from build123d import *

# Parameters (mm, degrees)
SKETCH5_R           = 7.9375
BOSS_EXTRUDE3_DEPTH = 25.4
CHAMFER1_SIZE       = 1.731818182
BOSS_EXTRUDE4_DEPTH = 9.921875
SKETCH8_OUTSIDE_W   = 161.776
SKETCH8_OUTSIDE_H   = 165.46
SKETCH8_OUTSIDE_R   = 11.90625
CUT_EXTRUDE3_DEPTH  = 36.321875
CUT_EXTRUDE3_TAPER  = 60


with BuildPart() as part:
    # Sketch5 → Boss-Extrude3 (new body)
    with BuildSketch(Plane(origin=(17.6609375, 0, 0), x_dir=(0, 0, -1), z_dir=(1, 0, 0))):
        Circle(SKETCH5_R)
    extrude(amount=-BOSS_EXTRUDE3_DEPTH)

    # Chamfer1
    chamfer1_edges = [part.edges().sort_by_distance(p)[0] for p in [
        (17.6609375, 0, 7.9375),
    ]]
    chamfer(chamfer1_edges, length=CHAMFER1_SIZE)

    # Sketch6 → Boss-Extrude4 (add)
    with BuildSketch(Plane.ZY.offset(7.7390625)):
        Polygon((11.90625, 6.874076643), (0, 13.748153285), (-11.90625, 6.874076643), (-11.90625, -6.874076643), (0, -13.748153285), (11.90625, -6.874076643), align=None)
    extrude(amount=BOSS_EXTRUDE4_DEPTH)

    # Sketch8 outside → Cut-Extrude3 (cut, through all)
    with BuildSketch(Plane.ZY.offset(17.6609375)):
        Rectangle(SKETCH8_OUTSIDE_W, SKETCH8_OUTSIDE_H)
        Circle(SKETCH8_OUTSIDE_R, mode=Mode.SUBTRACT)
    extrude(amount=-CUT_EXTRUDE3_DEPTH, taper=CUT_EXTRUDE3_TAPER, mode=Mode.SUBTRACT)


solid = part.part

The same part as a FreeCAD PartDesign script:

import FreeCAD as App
import Part
import Sketcher

V = App.Vector
Q = App.Units.Quantity


def edges_at(feature, points):
    """Names of the edges that pass closest to the given points."""
    edges = feature.Shape.Edges
    near = lambda p: min(range(len(edges)), key=lambda i: edges[i].distToShape(Part.Vertex(*p))[0])
    return sorted({f"Edge{near(p) + 1}" for p in points})

doc = App.newDocument("Part")
body = doc.addObject("PartDesign::Body", "Body")

sketch1 = body.newObject("Sketcher::SketchObject", "Sketch")
sketch1.AttachmentSupport = (doc.getObject("YZ_Plane"), [""])
sketch1.MapMode = "FlatFace"
sketch1.AttachmentOffset = App.Placement(V(0, 0, 17.660937), App.Rotation())
sketch1.addGeometry(Part.Circle(V(0, 0, 0), V(0, 0, 1), 8), False)
sketch1.addConstraint([
    Sketcher.Constraint("Coincident", 0, 3, -1, 1),
    Sketcher.Constraint("Diameter", 0, Q("0.625 in")),
])
pad1 = body.newObject("PartDesign::Pad", "Pad")
pad1.Profile = sketch1
pad1.Length = Q("1 in")
pad1.Reversed = True
doc.recompute()

chamfer = body.newObject("PartDesign::Chamfer", "Chamfer")
chamfer.Base = (pad1, edges_at(pad1, [(17.661, 0, 7.938)]))
chamfer.Size = 1.731818

sketch2 = body.newObject("Sketcher::SketchObject", "Sketch001")
sketch2.AttachmentSupport = (doc.getObject("YZ_Plane"), [""])
sketch2.MapMode = "FlatFace"
sketch2.AttachmentOffset = App.Placement(V(0, 0, -7.739063), App.Rotation())
sketch2.addGeometry([
    Part.LineSegment(V(7, 12, 0), V(14, 0, 0)),
    Part.LineSegment(V(14, 0, 0), V(7, -12, 0)),
    Part.LineSegment(V(7, -12, 0), V(-7, -12, 0)),
    Part.LineSegment(V(-7, -12, 0), V(-14, 0, 0)),
    Part.LineSegment(V(-14, 0, 0), V(-7, 12, 0)),
    Part.LineSegment(V(-7, 12, 0), V(7, 12, 0)),
], False)
sketch2.addConstraint([
    Sketcher.Constraint("Coincident", 0, 2, 1, 1),
    Sketcher.Constraint("Coincident", 1, 2, 2, 1),
    Sketcher.Constraint("Coincident", 2, 2, 3, 1),
    Sketcher.Constraint("Coincident", 3, 2, 4, 1),
    Sketcher.Constraint("Coincident", 4, 2, 5, 1),
    Sketcher.Constraint("Coincident", 5, 2, 0, 1),
    Sketcher.Constraint("Horizontal", 2),
    Sketcher.Constraint("Horizontal", 5),
    Sketcher.Constraint("Symmetric", 0, 2, 3, 2, -1, 1),
    Sketcher.Constraint("Symmetric", 1, 2, 4, 2, -1, 1),
    Sketcher.Constraint("PointOnObject", 0, 2, -1),
    Sketcher.Constraint("Parallel", 0, 3),
    Sketcher.Constraint("Vertical", 2, 2, 4, 2),
    Sketcher.Constraint("Angle", 0, Q("-60 deg")),
    Sketcher.Constraint("DistanceY", 1, 2, -1, 1, Q("0.46875 in")),
    Sketcher.Constraint("DistanceX", 2, 2, 2, 1, Q("13.748153 mm")),
])
pad2 = body.newObject("PartDesign::Pad", "Pad001")
pad2.Profile = sketch2
pad2.Length = Q("0.390625 in")
pad2.Reversed = True

sketch3 = body.newObject("Sketcher::SketchObject", "Sketch002")
sketch3.AttachmentSupport = (doc.getObject("YZ_Plane"), [""])
sketch3.MapMode = "FlatFace"
sketch3.AttachmentOffset = App.Placement(V(0, 0, -17.660937), App.Rotation())
sketch3.addGeometry([
    Part.LineSegment(V(83, -81, 0), V(-83, -81, 0)),
    Part.LineSegment(V(-83, -81, 0), V(-83, 81, 0)),
    Part.LineSegment(V(-83, 81, 0), V(83, 81, 0)),
    Part.LineSegment(V(83, 81, 0), V(83, -81, 0)),
    Part.Circle(V(0, 0, 0), V(0, 0, 1), 12),
], False)
sketch3.addConstraint([
    Sketcher.Constraint("Coincident", 0, 2, 1, 1),
    Sketcher.Constraint("Coincident", 1, 2, 2, 1),
    Sketcher.Constraint("Coincident", 2, 2, 3, 1),
    Sketcher.Constraint("Coincident", 3, 2, 0, 1),
    Sketcher.Constraint("Horizontal", 0),
    Sketcher.Constraint("Vertical", 1),
    Sketcher.Constraint("Horizontal", 2),
    Sketcher.Constraint("Vertical", 3),
    Sketcher.Constraint("Coincident", 4, 3, -1, 1),
    Sketcher.Constraint("Symmetric", 0, 2, 2, 2, -1, 1),
    Sketcher.Constraint("Diameter", 4, Q("0.9375 in")),
    Sketcher.Constraint("DistanceX", 0, 2, 0, 1, Q("165.46 mm")),
    Sketcher.Constraint("DistanceY", 1, 1, 1, 2, Q("161.776 mm")),
])
pocket1 = body.newObject("PartDesign::Pocket", "Pocket")
pocket1.Profile = sketch3
pocket1.Length = 36.321875
pocket1.Reversed = True
pocket1.TaperAngle = 60

doc.recompute()
